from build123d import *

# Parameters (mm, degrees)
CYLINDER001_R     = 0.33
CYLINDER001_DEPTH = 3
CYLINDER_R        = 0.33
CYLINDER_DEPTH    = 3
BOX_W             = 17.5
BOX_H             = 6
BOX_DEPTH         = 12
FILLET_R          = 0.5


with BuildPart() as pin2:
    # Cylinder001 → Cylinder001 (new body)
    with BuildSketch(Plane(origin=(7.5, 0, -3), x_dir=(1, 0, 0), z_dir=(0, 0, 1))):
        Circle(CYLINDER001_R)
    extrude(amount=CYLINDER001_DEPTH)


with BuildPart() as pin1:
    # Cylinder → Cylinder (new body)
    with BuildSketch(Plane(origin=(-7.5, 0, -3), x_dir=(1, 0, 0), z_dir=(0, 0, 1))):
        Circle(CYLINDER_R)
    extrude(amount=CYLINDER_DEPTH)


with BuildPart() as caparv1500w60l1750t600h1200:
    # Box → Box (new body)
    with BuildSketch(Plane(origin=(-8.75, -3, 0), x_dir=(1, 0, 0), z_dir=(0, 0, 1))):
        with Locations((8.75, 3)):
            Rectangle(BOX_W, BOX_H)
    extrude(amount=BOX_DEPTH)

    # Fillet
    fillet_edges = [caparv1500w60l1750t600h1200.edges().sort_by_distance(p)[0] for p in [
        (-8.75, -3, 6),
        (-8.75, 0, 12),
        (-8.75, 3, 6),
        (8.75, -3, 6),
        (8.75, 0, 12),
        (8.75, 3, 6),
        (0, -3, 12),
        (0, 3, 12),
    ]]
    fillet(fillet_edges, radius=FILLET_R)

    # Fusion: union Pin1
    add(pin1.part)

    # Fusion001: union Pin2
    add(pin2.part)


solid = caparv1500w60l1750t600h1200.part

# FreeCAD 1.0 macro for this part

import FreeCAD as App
import Part
import Sketcher

V = App.Vector
Q = App.Units.Quantity


def edges_at(feature, points):
    """Names of the edges that pass closest to the given points."""
    edges = feature.Shape.Edges
    near = lambda p: min(range(len(edges)), key=lambda i: edges[i].distToShape(Part.Vertex(*p))[0])
    return sorted({f"Edge{near(p) + 1}" for p in points})


def add_polygon(sketch, points):
    """Adds a closed chain of lines whose ends are joined by coincident constraints."""
    first, n = sketch.GeometryCount, len(points)
    for a, b in zip(points, points[1:] + points[:1]):
        sketch.addGeometry(Part.LineSegment(App.Vector(*a, 0), App.Vector(*b, 0)), False)
    for i in range(n):
        sketch.addConstraint(Sketcher.Constraint("Coincident", first + i, 2, first + (i + 1) % n, 1))

doc = App.newDocument("Part")
body = doc.addObject("PartDesign::Body", "Body")

# Sketch on XY plane
sketch1 = body.newObject("Sketcher::SketchObject", "Sketch")
sketch1.AttachmentSupport = (doc.getObject("XY_Plane"), [""])
sketch1.MapMode = "FlatFace"
sketch1.AttachmentOffset = App.Placement(V(0, 0, -3), App.Rotation())
sketch1.addGeometry(Part.Circle(V(7.5, 0, 0), V(0, 0, 1), 0.33), False)
sketch1.addConstraint(Sketcher.Constraint("PointOnObject", 0, 3, -1))
sketch1.addConstraint(Sketcher.Constraint("Diameter", 0, Q("0.66 mm")))
sketch1.addConstraint(Sketcher.Constraint("DistanceX", -1, 1, 0, 3, Q("7.5 mm")))
pad1 = body.newObject("PartDesign::Pad", "Pad")
pad1.Profile = sketch1
pad1.Length = 3
body2 = doc.addObject("PartDesign::Body", "Body001")

# Sketch on XY plane
sketch2 = body2.newObject("Sketcher::SketchObject", "Sketch001")
sketch2.AttachmentSupport = (doc.getObject("XY_Plane001"), [""])
sketch2.MapMode = "FlatFace"
sketch2.AttachmentOffset = App.Placement(V(0, 0, -3), App.Rotation())
sketch2.addGeometry(Part.Circle(V(-7.5, 0, 0), V(0, 0, 1), 0.33), False)
sketch2.addConstraint(Sketcher.Constraint("PointOnObject", 0, 3, -1))
sketch2.addConstraint(Sketcher.Constraint("Diameter", 0, Q("0.66 mm")))
sketch2.addConstraint(Sketcher.Constraint("DistanceX", 0, 3, -1, 1, Q("7.5 mm")))
pad2 = body2.newObject("PartDesign::Pad", "Pad001")
pad2.Profile = sketch2
pad2.Length = 3
body3 = doc.addObject("PartDesign::Body", "Body002")

# Sketch on XY plane
sketch3 = body3.newObject("Sketcher::SketchObject", "Sketch002")
sketch3.AttachmentSupport = (doc.getObject("XY_Plane002"), [""])
sketch3.MapMode = "FlatFace"
add_polygon(sketch3, [(-9, 3), (-9, -3), (9, -3), (9, 3)])  # lines 0-3
sketch3.addConstraint(Sketcher.Constraint("Vertical", 0))
sketch3.addConstraint(Sketcher.Constraint("Horizontal", 1))
sketch3.addConstraint(Sketcher.Constraint("Vertical", 2))
sketch3.addConstraint(Sketcher.Constraint("Horizontal", 3))
sketch3.addConstraint(Sketcher.Constraint("Symmetric", 0, 2, 2, 2, -1, 1))
sketch3.addConstraint(Sketcher.Constraint("DistanceY", 0, 2, 0, 1, Q("6 mm")))
sketch3.addConstraint(Sketcher.Constraint("DistanceX", 1, 1, 1, 2, Q("17.5 mm")))
pad3 = body3.newObject("PartDesign::Pad", "Pad002")
pad3.Profile = sketch3
pad3.Length = 12
doc.recompute()

fillet = body3.newObject("PartDesign::Fillet", "Fillet")
fillet.Base = (pad3, edges_at(pad3, [
    (-8.75, -3, 6),
    (-8.75, 0, 12),
    (-8.75, 3, 6),
    (8.75, -3, 6),
    (8.75, 0, 12),
    (8.75, 3, 6),
    (0, -3, 12),
    (0, 3, 12),
]))
fillet.Radius = 0.5
doc.recompute()

boolean = body3.newObject("PartDesign::Boolean", "Boolean")
boolean.Type = "Fuse"
boolean.addObjects([body2])
doc.recompute()

boolean2 = body3.newObject("PartDesign::Boolean", "Boolean001")
boolean2.Type = "Fuse"
boolean2.addObjects([body])

doc.recompute()
